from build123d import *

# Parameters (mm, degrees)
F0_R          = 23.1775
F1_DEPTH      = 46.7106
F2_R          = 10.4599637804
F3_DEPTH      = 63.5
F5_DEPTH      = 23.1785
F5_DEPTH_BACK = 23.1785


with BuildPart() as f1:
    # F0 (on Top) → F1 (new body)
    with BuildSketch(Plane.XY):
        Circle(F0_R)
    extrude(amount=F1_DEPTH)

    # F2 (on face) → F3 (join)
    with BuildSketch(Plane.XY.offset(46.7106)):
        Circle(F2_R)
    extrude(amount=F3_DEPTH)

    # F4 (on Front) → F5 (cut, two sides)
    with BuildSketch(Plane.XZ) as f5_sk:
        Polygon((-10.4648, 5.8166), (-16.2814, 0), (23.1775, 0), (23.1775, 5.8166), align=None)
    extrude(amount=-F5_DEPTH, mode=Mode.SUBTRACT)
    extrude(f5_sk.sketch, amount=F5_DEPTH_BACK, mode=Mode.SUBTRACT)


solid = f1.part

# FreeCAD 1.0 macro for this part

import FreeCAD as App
import Part
import Sketcher
from FreeCAD import Vector
Q = App.Units.Quantity


def add_polygon(sketch, points):
    """Adds a closed chain of lines whose ends are joined by coincident constraints."""
    first, n = sketch.GeometryCount, len(points)
    for a, b in zip(points, points[1:] + points[:1]):
        sketch.addGeometry(Part.LineSegment(App.Vector(*a, 0), App.Vector(*b, 0)), False)
    for i in range(n):
        sketch.addConstraint(Sketcher.Constraint("Coincident", first + i, 2, first + (i + 1) % n, 1))

doc = App.newDocument("Part")
body = doc.addObject("PartDesign::Body", "Body")

sketch1 = body.newObject("Sketcher::SketchObject", "Sketch")
sketch1.AttachmentSupport = (doc.getObject("XY_Plane"), [""])
sketch1.MapMode = "FlatFace"
sketch1.addGeometry(Part.Circle(Vector(0, 0, 0), Vector(0, 0, 1), 23.1775), False)
sketch1.addConstraint(Sketcher.Constraint("Coincident", 0, 3, -1, 1))
sketch1.addConstraint(Sketcher.Constraint("Diameter", 0, Q("1.825 in")))
pad1 = body.newObject("PartDesign::Pad", "Pad")
pad1.Profile = sketch1
pad1.Length = Q("1.839 in")

sketch2 = body.newObject("Sketcher::SketchObject", "Sketch001")
sketch2.AttachmentSupport = (doc.getObject("XY_Plane"), [""])
sketch2.MapMode = "FlatFace"
sketch2.AttachmentOffset = App.Placement(Vector(0, 0, 1.839 * 25.4), App.Rotation())
sketch2.addGeometry(Part.Circle(Vector(0, 0, 0), Vector(0, 0, 1), 10.459964), False)
sketch2.addConstraint(Sketcher.Constraint("Coincident", 0, 3, -1, 1))
sketch2.addConstraint(Sketcher.Constraint("Diameter", 0, 20.919928))
pad2 = body.newObject("PartDesign::Pad", "Pad001")
pad2.Profile = sketch2
pad2.Length = Q("2.5 in")

sketch3 = body.newObject("Sketcher::SketchObject", "Sketch002")
sketch3.AttachmentSupport = (doc.getObject("XZ_Plane"), [""])
sketch3.MapMode = "FlatFace"
add_polygon(sketch3, [(-10.4648, 5.8166), (-16.2814, 0), (23.1775, 0), (23.1775, 5.8166)])
sketch3.addConstraint(Sketcher.Constraint("Horizontal", 1))
sketch3.addConstraint(Sketcher.Constraint("Vertical", 2))
sketch3.addConstraint(Sketcher.Constraint("Horizontal", 3))
sketch3.addConstraint(Sketcher.Constraint("PointOnObject", 0, 2, -1))
sketch3.addConstraint(Sketcher.Constraint("Angle", 0, Q("-135 deg")))
sketch3.addConstraint(Sketcher.Constraint("DistanceY", 2, 1, 2, 2, Q("0.229 in")))
sketch3.addConstraint(Sketcher.Constraint("DistanceX", 1, 1, 1, 2, Q("1.5535 in")))
sketch3.addConstraint(Sketcher.Constraint("DistanceX", 0, 2, -1, 1, Q("0.641 in")))
pocket1 = body.newObject("PartDesign::Pocket", "Pocket")
pocket1.Profile = sketch3
pocket1.Type = "ThroughAll"
pocket1.Midplane = True

doc.recompute()
